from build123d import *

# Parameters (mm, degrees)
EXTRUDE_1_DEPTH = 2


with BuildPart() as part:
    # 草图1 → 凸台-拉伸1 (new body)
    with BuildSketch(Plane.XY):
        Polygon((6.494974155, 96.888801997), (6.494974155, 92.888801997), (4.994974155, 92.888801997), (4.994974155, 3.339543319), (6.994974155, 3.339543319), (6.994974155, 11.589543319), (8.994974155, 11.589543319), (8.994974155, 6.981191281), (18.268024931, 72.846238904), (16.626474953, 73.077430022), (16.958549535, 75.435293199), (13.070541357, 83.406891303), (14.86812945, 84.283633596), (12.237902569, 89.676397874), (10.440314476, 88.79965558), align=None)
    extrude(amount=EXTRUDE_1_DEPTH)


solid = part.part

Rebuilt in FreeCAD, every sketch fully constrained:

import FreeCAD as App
import Part
import Sketcher
from FreeCAD import Vector
Q = App.Units.Quantity


def add_polygon(sketch, points):
    """Adds a closed chain of lines whose ends are joined by coincident constraints."""
    first, n = sketch.GeometryCount, len(points)
    for a, b in zip(points, points[1:] + points[:1]):
        sketch.addGeometry(Part.LineSegment(App.Vector(*a, 0), App.Vector(*b, 0)), False)
    for i in range(n):
        sketch.addConstraint(Sketcher.Constraint("Coincident", first + i, 2, first + (i + 1) % n, 1))

doc = App.newDocument("Part")
body = doc.addObject("PartDesign::Body", "Body")

# Sketch on XY plane
sketch1 = body.newObject("Sketcher::SketchObject", "Sketch")
sketch1.AttachmentSupport = (doc.getObject("XY_Plane"), [""])
sketch1.MapMode = "FlatFace"
add_polygon(sketch1, [(6.494974, 96.888802), (6.494974, 92.888802), (4.994974, 92.888802), (4.994974, 3.339543), (6.994974, 3.339543), (6.994974, 11.589543), (8.994974, 11.589543), (8.994974, 6.981191), (18.268025, 72.846239), (16.626475, 73.07743), (16.95855, 75.435293), (13.070541, 83.406891), (14.868129, 84.283634), (12.237903, 89.676398), (10.440314, 88.799656)])  # lines 0-14
sketch1.addConstraint([
    Sketcher.Constraint("Vertical", 0),
    Sketcher.Constraint("Horizontal", 1),
    Sketcher.Constraint("Vertical", 2),
    Sketcher.Constraint("Horizontal", 3),
    Sketcher.Constraint("Vertical", 4),
    Sketcher.Constraint("Horizontal", 5),
    Sketcher.Constraint("Vertical", 6),
    Sketcher.Constraint("Perpendicular", 8, 9),
    Sketcher.Constraint("Perpendicular", 10, 11),
    Sketcher.Constraint("Perpendicular", 11, 12),
    Sketcher.Constraint("Perpendicular", 12, 13),
    Sketcher.Constraint("Perpendicular", 13, 14),
    Sketcher.Constraint("Equal", 3, 5),
    Sketcher.Constraint("Equal", 11, 13),
    Sketcher.Constraint("DistanceX", 3, 1, 3, 2, Q("2 mm")),
    Sketcher.Constraint("DistanceY", 0, 2, 0, 1, Q("4 mm")),
    Sketcher.Constraint("Angle", 10, Q("116 deg")),
    Sketcher.Constraint("Distance", 11, Q("2 mm")),
    Sketcher.Constraint("Distance", 12, Q("6 mm")),
    Sketcher.Constraint("Distance", 14, Q("9 mm")),
    Sketcher.Constraint("DistanceX", 1, 2, 1, 1, Q("1.5 mm")),
    Sketcher.Constraint("DistanceY", 4, 1, 4, 2, Q("8.25 mm")),
    Sketcher.Constraint("DistanceY", 2, 2, 2, 1, Q("89.549259 mm")),
    Sketcher.Constraint("DistanceY", -1, 1, 0, 2, Q("92.888802 mm")),
    Sketcher.Constraint("DistanceX", 0, 2, 8, 2, Q("10.131501 mm")),
    Sketcher.Constraint("DistanceY", 9, 2, 10, 2, Q("7.971598 mm")),
    Sketcher.Constraint("Distance", 8, Q("1.65775 mm")),
    Sketcher.Constraint("DistanceY", 6, 2, 6, 1, Q("4.608352 mm")),
    Sketcher.Constraint("DistanceY", -1, 1, 7, 2, Q("72.846239 mm")),
    Sketcher.Constraint("DistanceX", -1, 1, 9, 2, Q("16.95855 mm")),
])
pad1 = body.newObject("PartDesign::Pad", "Pad")
pad1.Profile = sketch1
pad1.Length = 2

doc.recompute()
